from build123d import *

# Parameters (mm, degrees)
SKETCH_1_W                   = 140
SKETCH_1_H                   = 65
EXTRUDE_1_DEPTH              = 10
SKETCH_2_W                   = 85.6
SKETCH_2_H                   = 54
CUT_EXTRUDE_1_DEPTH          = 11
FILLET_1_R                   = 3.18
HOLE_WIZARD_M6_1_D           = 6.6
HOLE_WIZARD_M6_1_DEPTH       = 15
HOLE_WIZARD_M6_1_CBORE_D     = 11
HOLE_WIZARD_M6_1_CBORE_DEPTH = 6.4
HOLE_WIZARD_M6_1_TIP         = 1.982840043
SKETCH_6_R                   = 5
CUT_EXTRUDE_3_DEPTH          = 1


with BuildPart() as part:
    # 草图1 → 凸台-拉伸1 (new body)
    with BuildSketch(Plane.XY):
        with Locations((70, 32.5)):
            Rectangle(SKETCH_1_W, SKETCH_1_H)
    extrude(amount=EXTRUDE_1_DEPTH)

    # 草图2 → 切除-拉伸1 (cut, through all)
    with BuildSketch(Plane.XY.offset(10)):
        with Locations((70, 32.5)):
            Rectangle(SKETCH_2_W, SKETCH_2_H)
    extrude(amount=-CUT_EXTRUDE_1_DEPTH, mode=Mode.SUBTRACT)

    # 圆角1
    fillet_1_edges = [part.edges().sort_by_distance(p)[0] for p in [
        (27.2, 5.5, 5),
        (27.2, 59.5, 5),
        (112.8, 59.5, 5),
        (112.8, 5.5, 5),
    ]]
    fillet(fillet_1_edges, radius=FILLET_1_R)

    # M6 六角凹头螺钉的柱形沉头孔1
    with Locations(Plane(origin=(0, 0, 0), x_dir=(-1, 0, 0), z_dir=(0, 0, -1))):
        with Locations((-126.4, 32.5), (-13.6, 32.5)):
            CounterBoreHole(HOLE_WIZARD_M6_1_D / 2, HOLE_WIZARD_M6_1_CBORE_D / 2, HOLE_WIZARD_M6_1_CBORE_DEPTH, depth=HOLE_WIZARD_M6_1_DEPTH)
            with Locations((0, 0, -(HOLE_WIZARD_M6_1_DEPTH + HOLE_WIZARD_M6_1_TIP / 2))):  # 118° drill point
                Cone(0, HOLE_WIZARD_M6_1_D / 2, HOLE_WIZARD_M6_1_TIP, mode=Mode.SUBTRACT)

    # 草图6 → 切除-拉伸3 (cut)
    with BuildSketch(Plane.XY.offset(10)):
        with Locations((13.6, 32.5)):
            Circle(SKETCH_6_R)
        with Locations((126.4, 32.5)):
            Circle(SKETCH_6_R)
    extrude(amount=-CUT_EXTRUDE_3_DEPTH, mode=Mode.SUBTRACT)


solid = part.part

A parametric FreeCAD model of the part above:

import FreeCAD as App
import Part
import Sketcher


def edges_at(feature, points):
    """Names of the edges that pass closest to the given points."""
    edges = feature.Shape.Edges
    near = lambda p: min(range(len(edges)), key=lambda i: edges[i].distToShape(Part.Vertex(*p))[0])
    return sorted({f"Edge{near(p) + 1}" for p in points})

doc = App.newDocument("Part")
body = doc.addObject("PartDesign::Body", "Body")

# Sketch on XY plane
sketch1 = body.newObject("Sketcher::SketchObject", "Sketch")
sketch1.AttachmentSupport = (doc.getObject("XY_Plane"), [""])
sketch1.MapMode = "FlatFace"
sketch1.addGeometry([
    Part.LineSegment(App.Vector(0, 65, 0), App.Vector(0, 0, 0)),
    Part.LineSegment(App.Vector(0, 0, 0), App.Vector(140, 0, 0)),
    Part.LineSegment(App.Vector(140, 0, 0), App.Vector(140, 65, 0)),
    Part.LineSegment(App.Vector(140, 65, 0), App.Vector(0, 65, 0)),
], False)
sketch1.addConstraint([
    Sketcher.Constraint("Coincident", 0, 2, 1, 1),
    Sketcher.Constraint("Coincident", 1, 2, 2, 1),
    Sketcher.Constraint("Coincident", 2, 2, 3, 1),
    Sketcher.Constraint("Coincident", 3, 2, 0, 1),
    Sketcher.Constraint("Vertical", 0),
    Sketcher.Constraint("Horizontal", 1),
    Sketcher.Constraint("Vertical", 2),
    Sketcher.Constraint("Horizontal", 3),
    Sketcher.Constraint("Coincident", 0, 2, -1, 1),
    Sketcher.Constraint("DistanceX", 1, 1, 1, 2, 140.0),
    Sketcher.Constraint("DistanceY", 0, 2, 0, 1, 65.0),
])
pad1 = body.newObject("PartDesign::Pad", "Pad")
pad1.Profile = sketch1
pad1.Length = 10

# Sketch on XY plane
sketch2 = body.newObject("Sketcher::SketchObject", "Sketch001")
sketch2.AttachmentSupport = (doc.getObject("XY_Plane"), [""])
sketch2.MapMode = "FlatFace"
sketch2.AttachmentOffset = App.Placement(App.Vector(0, 0, 10), App.Rotation())
sketch2.addGeometry([
    Part.LineSegment(App.Vector(27.2, 59.5, 0), App.Vector(27.2, 5.5, 0)),
    Part.LineSegment(App.Vector(27.2, 5.5, 0), App.Vector(112.8, 5.5, 0)),
    Part.LineSegment(App.Vector(112.8, 5.5, 0), App.Vector(112.8, 59.5, 0)),
    Part.LineSegment(App.Vector(112.8, 59.5, 0), App.Vector(27.2, 59.5, 0)),
], False)
sketch2.addConstraint([
    Sketcher.Constraint("Coincident", 0, 2, 1, 1),
    Sketcher.Constraint("Coincident", 1, 2, 2, 1),
    Sketcher.Constraint("Coincident", 2, 2, 3, 1),
    Sketcher.Constraint("Coincident", 3, 2, 0, 1),
    Sketcher.Constraint("Vertical", 0),
    Sketcher.Constraint("Horizontal", 1),
    Sketcher.Constraint("Vertical", 2),
    Sketcher.Constraint("Horizontal", 3),
    Sketcher.Constraint("DistanceY", 0, 2, 0, 1, 54.0),
    Sketcher.Constraint("DistanceX", 1, 1, 1, 2, 85.6),
    Sketcher.Constraint("DistanceX", -1, 1, 0, 2, 27.2),
    Sketcher.Constraint("DistanceY", -1, 1, 0, 2, 5.5),
])
pocket1 = body.newObject("PartDesign::Pocket", "Pocket")
pocket1.Profile = sketch2
pocket1.Type = "ThroughAll"
doc.recompute()

fillet = body.newObject("PartDesign::Fillet", "Fillet")
fillet.Base = (pocket1, edges_at(pocket1, [
    (27.2, 5.5, 5),
    (27.2, 59.5, 5),
    (112.8, 59.5, 5),
    (112.8, 5.5, 5),
]))
fillet.Radius = 3.18

# Sketch on XY plane
sketch3 = body.newObject("Sketcher::SketchObject", "Sketch002")
sketch3.AttachmentSupport = (doc.getObject("XY_Plane"), [""])
sketch3.MapMode = "FlatFace"
sketch3.addGeometry([
    Part.Circle(App.Vector(126.4, 32.5, 0), App.Vector(0, 0, 1), 3.3),
    Part.Circle(App.Vector(13.6, 32.5, 0), App.Vector(0, 0, 1), 3.3),
], False)
sketch3.addConstraint([
    Sketcher.Constraint("Equal", 0, 1),
    Sketcher.Constraint("Horizontal", 0, 3, 1, 3),
    Sketcher.Constraint("Diameter", 0, 6.6),
    Sketcher.Constraint("DistanceX", -1, 1, 0, 3, 126.4),
    Sketcher.Constraint("DistanceY", -1, 1, 0, 3, 32.5),
    Sketcher.Constraint("DistanceX", -1, 1, 1, 3, 13.6),
])
doc.recompute()
hole = body.newObject("PartDesign::Hole", "Hole")
hole.Profile = sketch3
hole.ThreadType = "None"
hole.Diameter = 6.6
hole.DepthType = "Dimension"
hole.Depth = 15
hole.DrillPoint = "Angled"
hole.DrillPointAngle = 118
hole.HoleCutType = "Counterbore"
hole.HoleCutDiameter = 11
hole.HoleCutDepth = 6.4
hole.Reversed = True

# Sketch on XY plane
sketch4 = body.newObject("Sketcher::SketchObject", "Sketch003")
sketch4.AttachmentSupport = (doc.getObject("XY_Plane"), [""])
sketch4.MapMode = "FlatFace"
sketch4.AttachmentOffset = App.Placement(App.Vector(0, 0, 10), App.Rotation())
sketch4.addGeometry([
    Part.Circle(App.Vector(13.6, 32.5, 0), App.Vector(0, 0, 1), 5),
    Part.Circle(App.Vector(126.4, 32.5, 0), App.Vector(0, 0, 1), 5),
], False)
sketch4.addConstraint([
    Sketcher.Constraint("Equal", 0, 1),
    Sketcher.Constraint("Horizontal", 0, 3, 1, 3),
    Sketcher.Constraint("Diameter", 0, 10.0),
    Sketcher.Constraint("DistanceX", -1, 1, 0, 3, 13.6),
    Sketcher.Constraint("DistanceY", -1, 1, 0, 3, 32.5),
    Sketcher.Constraint("DistanceX", -1, 1, 1, 3, 126.4),
])
pocket2 = body.newObject("PartDesign::Pocket", "Pocket001")
pocket2.Profile = sketch4
pocket2.Length = 1

doc.recompute()
